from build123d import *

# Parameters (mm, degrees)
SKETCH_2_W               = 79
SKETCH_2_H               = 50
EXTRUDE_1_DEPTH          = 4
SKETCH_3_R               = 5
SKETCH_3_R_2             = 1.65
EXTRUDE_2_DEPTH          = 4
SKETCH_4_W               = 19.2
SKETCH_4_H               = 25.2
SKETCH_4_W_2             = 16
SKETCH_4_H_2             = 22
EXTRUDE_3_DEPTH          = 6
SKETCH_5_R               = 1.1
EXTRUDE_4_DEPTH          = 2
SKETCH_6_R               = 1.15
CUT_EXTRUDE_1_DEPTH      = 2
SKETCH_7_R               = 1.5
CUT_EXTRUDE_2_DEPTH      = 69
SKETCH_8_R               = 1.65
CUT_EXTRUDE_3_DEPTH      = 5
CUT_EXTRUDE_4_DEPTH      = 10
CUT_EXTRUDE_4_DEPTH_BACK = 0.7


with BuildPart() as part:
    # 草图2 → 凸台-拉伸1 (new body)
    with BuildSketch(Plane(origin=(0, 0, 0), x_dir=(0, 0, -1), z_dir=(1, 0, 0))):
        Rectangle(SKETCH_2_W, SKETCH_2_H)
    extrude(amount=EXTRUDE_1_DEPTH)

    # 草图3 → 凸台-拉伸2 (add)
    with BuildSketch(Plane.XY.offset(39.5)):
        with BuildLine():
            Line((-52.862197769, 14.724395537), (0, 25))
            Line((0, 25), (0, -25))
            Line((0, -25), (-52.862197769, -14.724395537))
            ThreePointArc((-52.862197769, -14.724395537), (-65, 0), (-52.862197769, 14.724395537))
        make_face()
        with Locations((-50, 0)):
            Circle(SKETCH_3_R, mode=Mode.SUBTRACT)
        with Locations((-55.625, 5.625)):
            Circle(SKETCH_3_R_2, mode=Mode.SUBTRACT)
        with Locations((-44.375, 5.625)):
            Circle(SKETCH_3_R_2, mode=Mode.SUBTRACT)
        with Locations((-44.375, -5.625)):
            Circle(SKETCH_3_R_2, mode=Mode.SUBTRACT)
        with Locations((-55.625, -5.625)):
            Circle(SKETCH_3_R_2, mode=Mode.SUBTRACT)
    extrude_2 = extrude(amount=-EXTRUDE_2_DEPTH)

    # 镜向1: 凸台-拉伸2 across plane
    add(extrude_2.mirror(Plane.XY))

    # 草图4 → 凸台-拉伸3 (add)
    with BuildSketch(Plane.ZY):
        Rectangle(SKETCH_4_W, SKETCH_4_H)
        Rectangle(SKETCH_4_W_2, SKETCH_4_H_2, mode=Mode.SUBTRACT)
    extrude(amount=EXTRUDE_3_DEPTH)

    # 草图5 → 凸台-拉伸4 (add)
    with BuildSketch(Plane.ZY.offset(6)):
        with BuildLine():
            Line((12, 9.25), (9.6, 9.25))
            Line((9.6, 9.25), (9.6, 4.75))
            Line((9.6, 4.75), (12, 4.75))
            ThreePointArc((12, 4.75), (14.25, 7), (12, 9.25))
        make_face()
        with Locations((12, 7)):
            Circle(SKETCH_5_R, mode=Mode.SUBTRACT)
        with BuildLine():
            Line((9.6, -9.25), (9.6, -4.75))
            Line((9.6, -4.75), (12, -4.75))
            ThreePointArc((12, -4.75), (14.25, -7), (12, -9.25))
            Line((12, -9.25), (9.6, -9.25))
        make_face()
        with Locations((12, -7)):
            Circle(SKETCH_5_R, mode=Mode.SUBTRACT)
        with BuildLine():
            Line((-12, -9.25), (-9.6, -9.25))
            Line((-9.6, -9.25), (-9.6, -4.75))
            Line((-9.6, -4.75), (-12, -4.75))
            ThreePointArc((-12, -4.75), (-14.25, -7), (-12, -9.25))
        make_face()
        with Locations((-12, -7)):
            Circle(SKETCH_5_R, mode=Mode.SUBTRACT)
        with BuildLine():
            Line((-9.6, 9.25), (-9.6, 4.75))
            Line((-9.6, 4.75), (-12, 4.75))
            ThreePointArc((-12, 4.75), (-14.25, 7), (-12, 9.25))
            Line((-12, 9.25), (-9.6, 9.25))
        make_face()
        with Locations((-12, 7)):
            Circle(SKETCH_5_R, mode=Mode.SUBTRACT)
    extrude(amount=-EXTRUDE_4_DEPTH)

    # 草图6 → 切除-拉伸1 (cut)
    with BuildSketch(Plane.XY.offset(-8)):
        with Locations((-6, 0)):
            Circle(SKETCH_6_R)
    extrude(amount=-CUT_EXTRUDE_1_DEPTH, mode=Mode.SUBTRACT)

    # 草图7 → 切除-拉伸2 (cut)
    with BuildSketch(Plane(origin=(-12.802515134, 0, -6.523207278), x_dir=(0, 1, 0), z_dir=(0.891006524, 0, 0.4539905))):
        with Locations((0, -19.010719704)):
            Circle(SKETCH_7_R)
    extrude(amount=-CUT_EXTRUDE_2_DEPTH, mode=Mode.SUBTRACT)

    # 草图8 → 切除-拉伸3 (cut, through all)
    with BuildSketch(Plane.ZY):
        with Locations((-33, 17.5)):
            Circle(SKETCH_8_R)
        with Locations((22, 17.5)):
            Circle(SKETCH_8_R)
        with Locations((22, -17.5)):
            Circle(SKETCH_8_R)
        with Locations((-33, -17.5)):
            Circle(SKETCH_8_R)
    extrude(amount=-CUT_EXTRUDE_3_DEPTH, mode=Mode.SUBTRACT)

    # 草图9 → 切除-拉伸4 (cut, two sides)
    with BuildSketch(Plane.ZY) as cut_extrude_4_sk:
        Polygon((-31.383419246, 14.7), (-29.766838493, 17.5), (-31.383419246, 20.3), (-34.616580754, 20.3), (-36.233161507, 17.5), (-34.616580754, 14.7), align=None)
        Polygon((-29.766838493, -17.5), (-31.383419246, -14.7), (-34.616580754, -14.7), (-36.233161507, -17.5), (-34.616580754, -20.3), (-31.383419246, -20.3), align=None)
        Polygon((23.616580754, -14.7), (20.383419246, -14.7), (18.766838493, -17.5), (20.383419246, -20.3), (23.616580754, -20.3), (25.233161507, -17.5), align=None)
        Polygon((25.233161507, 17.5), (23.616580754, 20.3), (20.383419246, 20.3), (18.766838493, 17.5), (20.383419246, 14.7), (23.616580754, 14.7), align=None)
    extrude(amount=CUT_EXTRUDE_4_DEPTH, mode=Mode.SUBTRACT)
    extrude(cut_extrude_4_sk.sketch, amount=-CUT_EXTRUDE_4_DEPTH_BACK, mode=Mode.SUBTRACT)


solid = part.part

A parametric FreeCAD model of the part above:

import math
import FreeCAD as App
import Part
import Sketcher
from FreeCAD import Vector
Q = App.Units.Quantity


def add_polygon(sketch, points):
    """Adds a closed chain of lines whose ends are joined by coincident constraints."""
    first, n = sketch.GeometryCount, len(points)
    for a, b in zip(points, points[1:] + points[:1]):
        sketch.addGeometry(Part.LineSegment(App.Vector(*a, 0), App.Vector(*b, 0)), False)
    for i in range(n):
        sketch.addConstraint(Sketcher.Constraint("Coincident", first + i, 2, first + (i + 1) % n, 1))

doc = App.newDocument("Part")
body = doc.addObject("PartDesign::Body", "Body")

# Sketch on YZ plane
sketch1 = body.newObject("Sketcher::SketchObject", "Sketch")
sketch1.AttachmentSupport = (doc.getObject("YZ_Plane"), [""])
sketch1.MapMode = "FlatFace"
add_polygon(sketch1, [(25, 40), (-25, 40), (-25, -40), (25, -40)])  # lines 0-3
sketch1.addConstraint(Sketcher.Constraint("Horizontal", 0))
sketch1.addConstraint(Sketcher.Constraint("Vertical", 1))
sketch1.addConstraint(Sketcher.Constraint("Horizontal", 2))
sketch1.addConstraint(Sketcher.Constraint("Vertical", 3))
sketch1.addConstraint(Sketcher.Constraint("Symmetric", 0, 2, 2, 2, -1, 1))
sketch1.addConstraint(Sketcher.Constraint("DistanceX", 0, 2, 0, 1, 50.0))
sketch1.addConstraint(Sketcher.Constraint("DistanceY", 1, 2, 1, 1, 79.0))
pad1 = body.newObject("PartDesign::Pad", "Pad")
pad1.Profile = sketch1
pad1.Length = 4

# Sketch on XY plane
sketch2 = body.newObject("Sketcher::SketchObject", "Sketch001")
sketch2.AttachmentSupport = (doc.getObject("XY_Plane"), [""])
sketch2.MapMode = "FlatFace"
sketch2.AttachmentOffset = App.Placement(Vector(0, 0, 39.5), App.Rotation())
sketch2.addGeometry(Part.LineSegment(Vector(0, 25, 0), Vector(-52.9, 14.7, 0)), False)
sketch2.addGeometry(Part.ArcOfCircle(Part.Circle(Vector(-50, 0, 0), Vector(0, 0, 1), 15), math.radians(101), math.radians(259)), False)
sketch2.addGeometry(Part.LineSegment(Vector(-52.9, -14.7, 0), Vector(0, -25, 0)), False)
sketch2.addGeometry(Part.LineSegment(Vector(0, -25, 0), Vector(0, 25, 0)), False)
sketch2.addGeometry(Part.Circle(Vector(-44.4, -5.6, 0), Vector(0, 0, 1), 1.6), False)
sketch2.addGeometry(Part.Circle(Vector(-55.6, -5.6, 0), Vector(0, 0, 1), 1.6), False)
sketch2.addGeometry(Part.Circle(Vector(-44.4, 5.6, 0), Vector(0, 0, 1), 1.6), False)
sketch2.addGeometry(Part.Circle(Vector(-50, 0, 0), Vector(0, 0, 1), 5), False)
sketch2.addGeometry(Part.Circle(Vector(-55.6, 5.6, 0), Vector(0, 0, 1), 1.6), False)
sketch2.addConstraint(Sketcher.Constraint("Tangent", 0, 2, 1, 1))
sketch2.addConstraint(Sketcher.Constraint("Tangent", 1, 2, 2, 1))
sketch2.addConstraint(Sketcher.Constraint("Coincident", 2, 2, 3, 1))
sketch2.addConstraint(Sketcher.Constraint("Coincident", 3, 2, 0, 1))
sketch2.addConstraint(Sketcher.Constraint("Vertical", 3))
sketch2.addConstraint(Sketcher.Constraint("Coincident", 7, 3, 1, 3))
sketch2.addConstraint(Sketcher.Constraint("Equal", 4, 5))
sketch2.addConstraint(Sketcher.Constraint("Equal", 5, 6))
sketch2.addConstraint(Sketcher.Constraint("Equal", 6, 8))
sketch2.addConstraint(Sketcher.Constraint("Symmetric", 2, 2, 3, 2, -1, 1))
sketch2.addConstraint(Sketcher.Constraint("Symmetric", 4, 3, 6, 3, -1))
sketch2.addConstraint(Sketcher.Constraint("Symmetric", 5, 3, 8, 3, -1))
sketch2.addConstraint(Sketcher.Constraint("PointOnObject", 1, 3, -1))
sketch2.addConstraint(Sketcher.Constraint("Horizontal", 4, 3, 5, 3))
sketch2.addConstraint(Sketcher.Constraint("Diameter", 7, 10.0))
sketch2.addConstraint(Sketcher.Constraint("Radius", 1, 15.0))
sketch2.addConstraint(Sketcher.Constraint("Diameter", 4, 3.3))
sketch2.addConstraint(Sketcher.Constraint("DistanceY", 3, 1, 3, 2, 50.0))
sketch2.addConstraint(Sketcher.Constraint("DistanceX", 1, 3, -1, 1, 50.0))
sketch2.addConstraint(Sketcher.Constraint("DistanceX", 5, 3, 4, 3, 11.25))
sketch2.addConstraint(Sketcher.Constraint("DistanceY", 4, 3, 6, 3, 11.25))
sketch2.addConstraint(Sketcher.Constraint("DistanceX", 4, 3, -1, 1, 44.375))
pad2 = body.newObject("PartDesign::Pad", "Pad001")
pad2.Profile = sketch2
pad2.Length = 4
pad2.Reversed = True
doc.recompute()

mirrored = body.newObject("PartDesign::Mirrored", "Mirrored")
mirrored.Originals = [pad2]
mirrored.MirrorPlane = (doc.getObject("XY_Plane"), [""])
body.Tip = mirrored

# Sketch on YZ plane
sketch3 = body.newObject("Sketcher::SketchObject", "Sketch002")
sketch3.AttachmentSupport = (doc.getObject("YZ_Plane"), [""])
sketch3.MapMode = "FlatFace"
add_polygon(sketch3, [(13, -10), (-13, -10), (-13, 10), (13, 10)])  # lines 0-3
add_polygon(sketch3, [(-11, 8), (-11, -8), (11, -8), (11, 8)])  # lines 4-7
sketch3.addConstraint(Sketcher.Constraint("Horizontal", 0))
sketch3.addConstraint(Sketcher.Constraint("Vertical", 1))
sketch3.addConstraint(Sketcher.Constraint("Horizontal", 2))
sketch3.addConstraint(Sketcher.Constraint("Vertical", 3))
sketch3.addConstraint(Sketcher.Constraint("Vertical", 4))
sketch3.addConstraint(Sketcher.Constraint("Horizontal", 5))
sketch3.addConstraint(Sketcher.Constraint("Vertical", 6))
sketch3.addConstraint(Sketcher.Constraint("Horizontal", 7))
sketch3.addConstraint(Sketcher.Constraint("Symmetric", 0, 2, 2, 2, -1, 1))
sketch3.addConstraint(Sketcher.Constraint("Symmetric", 4, 2, 6, 2, -1, 1))
sketch3.addConstraint(Sketcher.Constraint("DistanceX", 5, 1, 5, 2, 22.0))
sketch3.addConstraint(Sketcher.Constraint("DistanceY", 4, 2, 4, 1, 16.0))
sketch3.addConstraint(Sketcher.Constraint("DistanceX", 0, 2, 0, 1, 25.2))
sketch3.addConstraint(Sketcher.Constraint("DistanceY", 1, 1, 1, 2, 19.2))
pad3 = body.newObject("PartDesign::Pad", "Pad002")
pad3.Profile = sketch3
pad3.Length = 6
pad3.Reversed = True

# Sketch on YZ plane
sketch4 = body.newObject("Sketcher::SketchObject", "Sketch003")
sketch4.AttachmentSupport = (doc.getObject("YZ_Plane"), [""])
sketch4.MapMode = "FlatFace"
sketch4.AttachmentOffset = App.Placement(Vector(0, 0, -6), App.Rotation())
sketch4.addGeometry(Part.LineSegment(Vector(9.2, 12, 0), Vector(9.2, 9.6, 0)), False)
sketch4.addGeometry(Part.LineSegment(Vector(9.2, 9.6, 0), Vector(4.8, 9.6, 0)), False)
sketch4.addGeometry(Part.LineSegment(Vector(4.8, 9.6, 0), Vector(4.8, 12, 0)), False)
sketch4.addGeometry(Part.ArcOfCircle(Part.Circle(Vector(7, 12, 0), Vector(0, 0, 1), 2.2), math.radians(0), math.radians(180)), False)
sketch4.addGeometry(Part.Circle(Vector(7, 12, 0), Vector(0, 0, 1), 1.1), False)
sketch4.addGeometry(Part.LineSegment(Vector(-4.8, 9.6, 0), Vector(-9.2, 9.6, 0)), False)
sketch4.addGeometry(Part.LineSegment(Vector(-9.2, 9.6, 0), Vector(-9.2, 12, 0)), False)
sketch4.addGeometry(Part.ArcOfCircle(Part.Circle(Vector(-7, 12, 0), Vector(0, 0, 1), 2.2), math.radians(0), math.radians(180)), False)
sketch4.addGeometry(Part.LineSegment(Vector(-4.8, 12, 0), Vector(-4.8, 9.6, 0)), False)
sketch4.addGeometry(Part.Circle(Vector(-7, 12, 0), Vector(0, 0, 1), 1.1), False)
sketch4.addGeometry(Part.LineSegment(Vector(-9.2, -12, 0), Vector(-9.2, -9.6, 0)), False)
sketch4.addGeometry(Part.LineSegment(Vector(-9.2, -9.6, 0), Vector(-4.8, -9.6, 0)), False)
sketch4.addGeometry(Part.LineSegment(Vector(-4.8, -9.6, 0), Vector(-4.8, -12, 0)), False)
sketch4.addGeometry(Part.ArcOfCircle(Part.Circle(Vector(-7, -12, 0), Vector(0, 0, 1), 2.2), math.radians(180), math.radians(360)), False)
sketch4.addGeometry(Part.Circle(Vector(-7, -12, 0), Vector(0, 0, 1), 1.1), False)
sketch4.addGeometry(Part.LineSegment(Vector(4.8, -9.6, 0), Vector(9.2, -9.6, 0)), False)
sketch4.addGeometry(Part.LineSegment(Vector(9.2, -9.6, 0), Vector(9.2, -12, 0)), False)
sketch4.addGeometry(Part.ArcOfCircle(Part.Circle(Vector(7, -12, 0), Vector(0, 0, 1), 2.2), math.radians(180), math.radians(360)), False)
sketch4.addGeometry(Part.LineSegment(Vector(4.8, -12, 0), Vector(4.8, -9.6, 0)), False)
sketch4.addGeometry(Part.Circle(Vector(7, -12, 0), Vector(0, 0, 1), 1.1), False)
sketch4.addConstraint(Sketcher.Constraint("Coincident", 0, 2, 1, 1))
sketch4.addConstraint(Sketcher.Constraint("Coincident", 1, 2, 2, 1))
sketch4.addConstraint(Sketcher.Constraint("Tangent", 2, 2, 3, 2))
sketch4.addConstraint(Sketcher.Constraint("Tangent", 3, 1, 0, 1))
sketch4.addConstraint(Sketcher.Constraint("Coincident", 5, 2, 6, 1))
sketch4.addConstraint(Sketcher.Constraint("Tangent", 6, 2, 7, 2))
sketch4.addConstraint(Sketcher.Constraint("Tangent", 7, 1, 8, 1))
sketch4.addConstraint(Sketcher.Constraint("Coincident", 8, 2, 5, 1))
sketch4.addConstraint(Sketcher.Constraint("Coincident", 10, 2, 11, 1))
sketch4.addConstraint(Sketcher.Constraint("Coincident", 11, 2, 12, 1))
sketch4.addConstraint(Sketcher.Constraint("Tangent", 12, 2, 13, 2))
sketch4.addConstraint(Sketcher.Constraint("Tangent", 13, 1, 10, 1))
sketch4.addConstraint(Sketcher.Constraint("Coincident", 15, 2, 16, 1))
sketch4.addConstraint(Sketcher.Constraint("Tangent", 16, 2, 17, 2))
sketch4.addConstraint(Sketcher.Constraint("Tangent", 17, 1, 18, 1))
sketch4.addConstraint(Sketcher.Constraint("Coincident", 18, 2, 15, 1))
sketch4.addConstraint(Sketcher.Constraint("Vertical", 0))
sketch4.addConstraint(Sketcher.Constraint("Horizontal", 1))
sketch4.addConstraint(Sketcher.Constraint("Vertical", 2))
sketch4.addConstraint(Sketcher.Constraint("Horizontal", 5))
sketch4.addConstraint(Sketcher.Constraint("Vertical", 6))
sketch4.addConstraint(Sketcher.Constraint("Vertical", 8))
sketch4.addConstraint(Sketcher.Constraint("Vertical", 10))
sketch4.addConstraint(Sketcher.Constraint("Horizontal", 11))
sketch4.addConstraint(Sketcher.Constraint("Vertical", 12))
sketch4.addConstraint(Sketcher.Constraint("Horizontal", 15))
sketch4.addConstraint(Sketcher.Constraint("Vertical", 16))
sketch4.addConstraint(Sketcher.Constraint("Vertical", 18))
sketch4.addConstraint(Sketcher.Constraint("Coincident", 4, 3, 3, 3))
sketch4.addConstraint(Sketcher.Constraint("Coincident", 9, 3, 7, 3))
sketch4.addConstraint(Sketcher.Constraint("Coincident", 14, 3, 13, 3))
sketch4.addConstraint(Sketcher.Constraint("Coincident", 19, 3, 17, 3))
sketch4.addConstraint(Sketcher.Constraint("Equal", 3, 7))
sketch4.addConstraint(Sketcher.Constraint("Equal", 4, 9))
sketch4.addConstraint(Sketcher.Constraint("Equal", 7, 13))
sketch4.addConstraint(Sketcher.Constraint("Equal", 9, 14))
sketch4.addConstraint(Sketcher.Constraint("Equal", 13, 17))
sketch4.addConstraint(Sketcher.Constraint("Equal", 14, 19))
sketch4.addConstraint(Sketcher.Constraint("Symmetric", 3, 3, 13, 3, -1, 1))
sketch4.addConstraint(Sketcher.Constraint("Symmetric", 7, 3, 17, 3, -1, 1))
sketch4.addConstraint(Sketcher.Constraint("Symmetric", 3, 3, 7, 3, -2))
sketch4.addConstraint(Sketcher.Constraint("Horizontal", 1, 2, 5, 2))
sketch4.addConstraint(Sketcher.Constraint("Horizontal", 11, 2, 15, 2))
sketch4.addConstraint(Sketcher.Constraint("Equal", 8, 10))
sketch4.addConstraint(Sketcher.Constraint("Diameter", 4, 2.2))
sketch4.addConstraint(Sketcher.Constraint("Radius", 3, 2.25))
sketch4.addConstraint(Sketcher.Constraint("DistanceY", 0, 2, 0, 1, 2.4))
sketch4.addConstraint(Sketcher.Constraint("DistanceX", -1, 1, 3, 3, 7.0))
sketch4.addConstraint(Sketcher.Constraint("DistanceY", -1, 1, 3, 3, 12.0))
pad4 = body.newObject("PartDesign::Pad", "Pad003")
pad4.Profile = sketch4
pad4.Length = 2

# Sketch on XY plane
sketch5 = body.newObject("Sketcher::SketchObject", "Sketch004")
sketch5.AttachmentSupport = (doc.getObject("XY_Plane"), [""])
sketch5.MapMode = "FlatFace"
sketch5.AttachmentOffset = App.Placement(Vector(0, 0, -8), App.Rotation())
sketch5.addGeometry(Part.Circle(Vector(-6, 0, 0), Vector(0, 0, 1), 1.1), False)
sketch5.addConstraint(Sketcher.Constraint("PointOnObject", 0, 3, -1))
sketch5.addConstraint(Sketcher.Constraint("Diameter", 0, 2.3))
sketch5.addConstraint(Sketcher.Constraint("DistanceX", 0, 3, -1, 1, 6.0))
pocket1 = body.newObject("PartDesign::Pocket", "Pocket")
pocket1.Profile = sketch5
pocket1.Length = 2

# Sketch on an angled plane
sketch6 = body.newObject("Sketcher::SketchObject", "Sketch005")
sketch6.Placement = App.Placement(Vector(-12.802515, 0, -6.523207), App.Rotation(Vector(0, 1, 0), Vector(-0.4539905, 0, 0.891006524), Vector(0.891006524, 0, 0.4539905), "ZXY"))
sketch6.addGeometry(Part.Circle(Vector(0, -19, 0), Vector(0, 0, 1), 1.5), False)
sketch6.addConstraint(Sketcher.Constraint("PointOnObject", 0, 3, -2))
sketch6.addConstraint(Sketcher.Constraint("Diameter", 0, 3.0))
sketch6.addConstraint(Sketcher.Constraint("DistanceY", 0, 3, -1, 1, 19.01072))
pocket2 = body.newObject("PartDesign::Pocket", "Pocket001")
pocket2.Profile = sketch6
pocket2.Length = 69

# Sketch on YZ plane
sketch7 = body.newObject("Sketcher::SketchObject", "Sketch006")
sketch7.AttachmentSupport = (doc.getObject("YZ_Plane"), [""])
sketch7.MapMode = "FlatFace"
sketch7.addGeometry(Part.Circle(Vector(17.5, -33, 0), Vector(0, 0, 1), 1.6), False)
sketch7.addGeometry(Part.Circle(Vector(17.5, 22, 0), Vector(0, 0, 1), 1.6), False)
sketch7.addGeometry(Part.Circle(Vector(-17.5, 22, 0), Vector(0, 0, 1), 1.6), False)
sketch7.addGeometry(Part.Circle(Vector(-17.5, -33, 0), Vector(0, 0, 1), 1.6), False)
sketch7.addConstraint(Sketcher.Constraint("Equal", 0, 1))
sketch7.addConstraint(Sketcher.Constraint("Equal", 1, 2))
sketch7.addConstraint(Sketcher.Constraint("Equal", 2, 3))
sketch7.addConstraint(Sketcher.Constraint("Symmetric", 1, 3, 2, 3, -2))
sketch7.addConstraint(Sketcher.Constraint("Symmetric", 0, 3, 3, 3, -2))
sketch7.addConstraint(Sketcher.Constraint("Vertical", 0, 3, 1, 3))
sketch7.addConstraint(Sketcher.Constraint("Diameter", 0, 3.3))
sketch7.addConstraint(Sketcher.Constraint("DistanceY", 0, 3, -1, 1, 33.0))
sketch7.addConstraint(Sketcher.Constraint("DistanceY", -1, 1, 1, 3, 22.0))
sketch7.addConstraint(Sketcher.Constraint("DistanceX", 2, 3, 1, 3, 35.0))
pocket3 = body.newObject("PartDesign::Pocket", "Pocket002")
pocket3.Profile = sketch7
pocket3.Type = "ThroughAll"
pocket3.Reversed = True

# Sketch on YZ plane
sketch8 = body.newObject("Sketcher::SketchObject", "Sketch007")
sketch8.AttachmentSupport = (doc.getObject("YZ_Plane"), [""])
sketch8.MapMode = "FlatFace"
add_polygon(sketch8, [(14.7, -31.4), (17.5, -29.8), (20.3, -31.4), (20.3, -34.6), (17.5, -36.2), (14.7, -34.6)])  # lines 0-5
add_polygon(sketch8, [(-17.5, -29.8), (-14.7, -31.4), (-14.7, -34.6), (-17.5, -36.2), (-20.3, -34.6), (-20.3, -31.4)])  # lines 6-11
add_polygon(sketch8, [(-14.7, 23.6), (-14.7, 20.4), (-17.5, 18.8), (-20.3, 20.4), (-20.3, 23.6), (-17.5, 25.2)])  # lines 12-17
add_polygon(sketch8, [(17.5, 25.2), (20.3, 23.6), (20.3, 20.4), (17.5, 18.8), (14.7, 20.4), (14.7, 23.6)])  # lines 18-23
sketch8.addConstraint(Sketcher.Constraint("Vertical", 2))
sketch8.addConstraint(Sketcher.Constraint("Vertical", 5))
sketch8.addConstraint(Sketcher.Constraint("Vertical", 7))
sketch8.addConstraint(Sketcher.Constraint("Vertical", 10))
sketch8.addConstraint(Sketcher.Constraint("Vertical", 12))
sketch8.addConstraint(Sketcher.Constraint("Vertical", 15))
sketch8.addConstraint(Sketcher.Constraint("Vertical", 19))
sketch8.addConstraint(Sketcher.Constraint("Vertical", 22))
sketch8.addConstraint(Sketcher.Constraint("Symmetric", 5, 2, 6, 2, -2))
sketch8.addConstraint(Sketcher.Constraint("Symmetric", 3, 2, 8, 2, -2))
sketch8.addConstraint(Sketcher.Constraint("Symmetric", 2, 2, 9, 2, -2))
sketch8.addConstraint(Sketcher.Constraint("Symmetric", 0, 2, 11, 2, -2))
sketch8.addConstraint(Sketcher.Constraint("Symmetric", 15, 2, 18, 2, -2))
sketch8.addConstraint(Sketcher.Constraint("Symmetric", 13, 2, 20, 2, -2))
sketch8.addConstraint(Sketcher.Constraint("Symmetric", 12, 2, 21, 2, -2))
sketch8.addConstraint(Sketcher.Constraint("Symmetric", 16, 2, 23, 2, -2))
sketch8.addConstraint(Sketcher.Constraint("Parallel", 0, 3))
sketch8.addConstraint(Sketcher.Constraint("Parallel", 1, 4))
sketch8.addConstraint(Sketcher.Constraint("Parallel", 4, 6))
sketch8.addConstraint(Sketcher.Constraint("Parallel", 3, 8))
sketch8.addConstraint(Sketcher.Constraint("Parallel", 8, 11))
sketch8.addConstraint(Sketcher.Constraint("Parallel", 11, 13))
sketch8.addConstraint(Sketcher.Constraint("Parallel", 9, 14))
sketch8.addConstraint(Sketcher.Constraint("Parallel", 13, 16))
sketch8.addConstraint(Sketcher.Constraint("Parallel", 14, 17))
sketch8.addConstraint(Sketcher.Constraint("Parallel", 16, 20))
sketch8.addConstraint(Sketcher.Constraint("Parallel", 20, 23))
sketch8.addConstraint(Sketcher.Constraint("Horizontal", 2, 2, 4, 2))
sketch8.addConstraint(Sketcher.Constraint("Horizontal", 1, 2, 5, 2))
sketch8.addConstraint(Sketcher.Constraint("Horizontal", 12, 2, 14, 2))
sketch8.addConstraint(Sketcher.Constraint("Horizontal", 15, 2, 17, 2))
sketch8.addConstraint(Sketcher.Constraint("Vertical", 7, 2, 12, 2))
sketch8.addConstraint(Sketcher.Constraint("Vertical", 11, 2, 13, 2))
sketch8.addConstraint(Sketcher.Constraint("Equal", 10, 12))
sketch8.addConstraint(Sketcher.Constraint("Angle", 0, Q("30 deg")))
sketch8.addConstraint(Sketcher.Constraint("DistanceX", 6, 2, 1, 2, 35.0))
sketch8.addConstraint(Sketcher.Constraint("DistanceY", 7, 2, 12, 2, 55.0))
sketch8.addConstraint(Sketcher.Constraint("DistanceX", -1, 1, 1, 2, 20.3))
sketch8.addConstraint(Sketcher.Constraint("DistanceY", 2, 2, 2, 1, 3.233162))
sketch8.addConstraint(Sketcher.Constraint("DistanceY", 0, 2, -1, 1, 29.766838))
pocket4 = body.newObject("PartDesign::Pocket", "Pocket003")
pocket4.Profile = sketch8
pocket4.Type = "TwoLengths"
pocket4.Length = 10
pocket4.Length2 = 0.7

doc.recompute()
